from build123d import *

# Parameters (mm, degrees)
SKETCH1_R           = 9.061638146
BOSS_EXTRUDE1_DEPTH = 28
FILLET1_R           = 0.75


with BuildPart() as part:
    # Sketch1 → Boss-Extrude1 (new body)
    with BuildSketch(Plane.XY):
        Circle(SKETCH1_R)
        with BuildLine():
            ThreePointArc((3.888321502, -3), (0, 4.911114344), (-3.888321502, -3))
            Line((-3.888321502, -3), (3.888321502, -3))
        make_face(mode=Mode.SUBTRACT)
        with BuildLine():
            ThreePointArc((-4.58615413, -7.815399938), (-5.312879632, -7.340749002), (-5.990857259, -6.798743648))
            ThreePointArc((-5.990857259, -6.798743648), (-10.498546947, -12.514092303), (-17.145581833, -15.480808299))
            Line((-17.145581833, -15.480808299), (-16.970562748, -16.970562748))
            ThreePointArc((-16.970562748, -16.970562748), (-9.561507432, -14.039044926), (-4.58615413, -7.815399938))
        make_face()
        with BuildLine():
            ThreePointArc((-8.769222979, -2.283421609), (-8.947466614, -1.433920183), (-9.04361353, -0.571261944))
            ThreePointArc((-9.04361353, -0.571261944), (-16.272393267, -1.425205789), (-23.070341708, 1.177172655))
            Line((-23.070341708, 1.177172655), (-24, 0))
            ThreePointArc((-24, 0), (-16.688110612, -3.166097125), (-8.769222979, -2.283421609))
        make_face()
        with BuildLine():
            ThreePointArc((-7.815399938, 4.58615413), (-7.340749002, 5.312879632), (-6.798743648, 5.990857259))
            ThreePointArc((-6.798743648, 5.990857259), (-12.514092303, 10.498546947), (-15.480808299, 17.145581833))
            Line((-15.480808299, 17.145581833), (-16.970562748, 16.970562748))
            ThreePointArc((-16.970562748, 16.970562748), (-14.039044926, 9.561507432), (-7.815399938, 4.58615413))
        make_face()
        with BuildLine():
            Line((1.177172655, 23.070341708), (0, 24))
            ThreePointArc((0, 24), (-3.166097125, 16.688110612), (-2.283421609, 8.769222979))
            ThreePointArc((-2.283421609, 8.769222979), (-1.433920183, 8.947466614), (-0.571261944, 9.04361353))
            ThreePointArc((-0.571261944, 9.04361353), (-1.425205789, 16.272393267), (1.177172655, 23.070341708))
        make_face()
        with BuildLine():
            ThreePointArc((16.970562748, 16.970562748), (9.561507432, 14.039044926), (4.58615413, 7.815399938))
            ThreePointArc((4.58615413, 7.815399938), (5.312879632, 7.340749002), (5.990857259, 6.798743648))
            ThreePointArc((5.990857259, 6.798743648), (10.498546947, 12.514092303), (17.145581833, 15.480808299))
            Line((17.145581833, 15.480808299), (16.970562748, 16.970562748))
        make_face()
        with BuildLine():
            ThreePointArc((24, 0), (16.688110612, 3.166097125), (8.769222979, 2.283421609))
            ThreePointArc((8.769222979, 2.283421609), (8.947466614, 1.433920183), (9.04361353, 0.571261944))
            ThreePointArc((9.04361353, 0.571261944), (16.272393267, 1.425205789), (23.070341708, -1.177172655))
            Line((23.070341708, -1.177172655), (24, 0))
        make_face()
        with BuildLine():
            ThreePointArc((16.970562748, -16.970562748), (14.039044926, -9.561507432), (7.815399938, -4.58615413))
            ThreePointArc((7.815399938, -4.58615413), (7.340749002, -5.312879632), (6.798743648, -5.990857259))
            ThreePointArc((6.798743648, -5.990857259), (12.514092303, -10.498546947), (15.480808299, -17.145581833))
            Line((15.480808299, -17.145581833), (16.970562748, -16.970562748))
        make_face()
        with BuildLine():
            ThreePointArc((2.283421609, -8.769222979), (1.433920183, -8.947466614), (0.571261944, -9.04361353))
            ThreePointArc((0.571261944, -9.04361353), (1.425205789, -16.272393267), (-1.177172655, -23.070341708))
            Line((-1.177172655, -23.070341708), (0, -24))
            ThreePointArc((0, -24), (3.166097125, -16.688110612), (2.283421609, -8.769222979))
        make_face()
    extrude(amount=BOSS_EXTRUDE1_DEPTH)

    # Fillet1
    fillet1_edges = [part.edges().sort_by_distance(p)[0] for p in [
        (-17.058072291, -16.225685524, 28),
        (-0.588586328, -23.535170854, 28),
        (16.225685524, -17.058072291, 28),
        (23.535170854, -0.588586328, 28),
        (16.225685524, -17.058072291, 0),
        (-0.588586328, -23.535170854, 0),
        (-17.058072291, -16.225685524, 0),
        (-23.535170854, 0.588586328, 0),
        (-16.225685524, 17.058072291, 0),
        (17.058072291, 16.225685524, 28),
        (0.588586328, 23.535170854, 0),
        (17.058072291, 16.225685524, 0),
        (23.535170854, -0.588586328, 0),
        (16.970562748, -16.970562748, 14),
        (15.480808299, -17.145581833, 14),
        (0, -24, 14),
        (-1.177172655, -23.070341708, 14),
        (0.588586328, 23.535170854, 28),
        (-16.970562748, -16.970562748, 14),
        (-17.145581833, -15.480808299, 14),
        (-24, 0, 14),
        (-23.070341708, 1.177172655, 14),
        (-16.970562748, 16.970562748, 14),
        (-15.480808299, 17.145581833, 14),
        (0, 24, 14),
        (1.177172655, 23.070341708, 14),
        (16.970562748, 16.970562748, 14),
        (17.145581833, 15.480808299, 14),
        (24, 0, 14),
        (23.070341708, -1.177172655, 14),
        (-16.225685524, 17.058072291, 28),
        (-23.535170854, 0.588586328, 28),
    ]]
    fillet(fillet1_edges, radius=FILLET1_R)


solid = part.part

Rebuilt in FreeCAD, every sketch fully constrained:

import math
import FreeCAD as App
import Part
import Sketcher


def edges_at(feature, points):
    """Names of the edges that pass closest to the given points."""
    edges = feature.Shape.Edges
    near = lambda p: min(range(len(edges)), key=lambda i: edges[i].distToShape(Part.Vertex(*p))[0])
    return sorted({f"Edge{near(p) + 1}" for p in points})

doc = App.newDocument("Part")
body = doc.addObject("PartDesign::Body", "Body")

# Sketch on XY plane
sketch1 = body.newObject("Sketcher::SketchObject", "Sketch")
sketch1.AttachmentSupport = (doc.getObject("XY_Plane"), [""])
sketch1.MapMode = "FlatFace"
sketch1.addGeometry([
    Part.ArcOfCircle(Part.Circle(App.Vector(-19.841948, -0.509682, 0), App.Vector(0, 0, 1), 15.212003), math.radians(-79.790229), math.radians(-24.420335)),  # 0
    Part.LineSegment(App.Vector(-17.145582, -15.480808, 0), App.Vector(-16.970563, -16.970563, 0)),  # 1
    Part.ArcOfCircle(Part.Circle(App.Vector(-18.779965, -1.569016, 0), App.Vector(0, 0, 1), 15.507468), math.radians(-83.299501), math.radians(-23.753238)),  # 2
    Part.ArcOfCircle(Part.Circle(App.Vector(0, 0, 0), App.Vector(0, 0, 1), 9.061638), math.radians(-120.404833), math.radians(-86.385574)),  # 3
    Part.ArcOfCircle(Part.Circle(App.Vector(-13.669977, -14.390776, 0), App.Vector(0, 0, 1), 15.212003), math.radians(-34.790229), math.radians(20.579665)),  # 4
    Part.LineSegment(App.Vector(-1.177173, -23.070342, 0), App.Vector(0, -24, 0)),  # 5
    Part.ArcOfCircle(Part.Circle(App.Vector(-12.169978, -14.388903, 0), App.Vector(0, 0, 1), 15.507468), math.radians(-38.299501), math.radians(21.246762)),  # 6
    Part.ArcOfCircle(Part.Circle(App.Vector(0, 0, 0), App.Vector(0, 0, 1), 9.061638), math.radians(-75.404833), math.radians(-41.385574)),  # 7
    Part.ArcOfCircle(Part.Circle(App.Vector(0.509682, -19.841948, 0), App.Vector(0, 0, 1), 15.212003), math.radians(10.209771), math.radians(65.579665)),  # 8
    Part.LineSegment(App.Vector(15.480808, -17.145582, 0), App.Vector(16.970563, -16.970563, 0)),  # 9
    Part.ArcOfCircle(Part.Circle(App.Vector(1.569016, -18.779965, 0), App.Vector(0, 0, 1), 15.507468), math.radians(6.700499), math.radians(66.246762)),  # 10
    Part.ArcOfCircle(Part.Circle(App.Vector(0, 0, 0), App.Vector(0, 0, 1), 9.061638), math.radians(-30.404833), math.radians(3.614426)),  # 11
    Part.ArcOfCircle(Part.Circle(App.Vector(14.390776, -13.669977, 0), App.Vector(0, 0, 1), 15.212003), math.radians(55.209771), math.radians(110.579665)),  # 12
    Part.LineSegment(App.Vector(23.070342, -1.177173, 0), App.Vector(24, 0, 0)),  # 13
    Part.ArcOfCircle(Part.Circle(App.Vector(14.388903, -12.169978, 0), App.Vector(0, 0, 1), 15.507468), math.radians(51.700499), math.radians(111.246762)),  # 14
    Part.ArcOfCircle(Part.Circle(App.Vector(0, 0, 0), App.Vector(0, 0, 1), 9.061638), math.radians(14.595167), math.radians(48.614426)),  # 15
    Part.ArcOfCircle(Part.Circle(App.Vector(19.841948, 0.509682, 0), App.Vector(0, 0, 1), 15.212003), math.radians(100.209771), math.radians(155.579665)),  # 16
    Part.LineSegment(App.Vector(17.145582, 15.480808, 0), App.Vector(16.970563, 16.970563, 0)),  # 17
    Part.ArcOfCircle(Part.Circle(App.Vector(18.779965, 1.569016, 0), App.Vector(0, 0, 1), 15.507468), math.radians(96.700499), math.radians(156.246762)),  # 18
    Part.ArcOfCircle(Part.Circle(App.Vector(0, 0, 0), App.Vector(0, 0, 1), 9.061638), math.radians(59.595167), math.radians(93.614426)),  # 19
    Part.ArcOfCircle(Part.Circle(App.Vector(13.669977, 14.390776, 0), App.Vector(0, 0, 1), 15.212003), math.radians(145.209771), math.radians(200.579665)),  # 20
    Part.LineSegment(App.Vector(1.177173, 23.070342, 0), App.Vector(0, 24, 0)),  # 21
    Part.ArcOfCircle(Part.Circle(App.Vector(12.169978, 14.388903, 0), App.Vector(0, 0, 1), 15.507468), math.radians(141.700499), math.radians(201.246762)),  # 22
    Part.ArcOfCircle(Part.Circle(App.Vector(0, 0, 0), App.Vector(0, 0, 1), 9.061638), math.radians(104.595167), math.radians(138.614426)),  # 23
    Part.ArcOfCircle(Part.Circle(App.Vector(-0.509682, 19.841948, 0), App.Vector(0, 0, 1), 15.212003), math.radians(-169.790229), math.radians(-114.420335)),  # 24
    Part.LineSegment(App.Vector(-15.480808, 17.145582, 0), App.Vector(-16.970563, 16.970563, 0)),  # 25
    Part.ArcOfCircle(Part.Circle(App.Vector(-1.569016, 18.779965, 0), App.Vector(0, 0, 1), 15.507468), math.radians(-173.299501), math.radians(-113.753238)),  # 26
    Part.ArcOfCircle(Part.Circle(App.Vector(0, 0, 0), App.Vector(0, 0, 1), 9.061638), math.radians(149.595167), math.radians(183.614426)),  # 27
    Part.ArcOfCircle(Part.Circle(App.Vector(-14.390776, 13.669977, 0), App.Vector(0, 0, 1), 15.212003), math.radians(-124.790229), math.radians(-69.420335)),  # 28
    Part.LineSegment(App.Vector(-23.070342, 1.177173, 0), App.Vector(-24, 0, 0)),  # 29
    Part.ArcOfCircle(Part.Circle(App.Vector(-14.388903, 12.169978, 0), App.Vector(0, 0, 1), 15.507468), math.radians(-128.299501), math.radians(-68.753238)),  # 30
    Part.ArcOfCircle(Part.Circle(App.Vector(0, 0, 0), App.Vector(0, 0, 1), 9.061638), math.radians(-165.404833), math.radians(-131.385574)),  # 31
    Part.ArcOfCircle(Part.Circle(App.Vector(0, 0, 0), App.Vector(0, 0, 1), 4.911114), math.radians(-37.651664), math.radians(217.651664)),  # 32
    Part.LineSegment(App.Vector(3.888322, -3, 0), App.Vector(-3.888322, -3, 0)),  # 33
], False)
sketch1.addConstraint([
    Sketcher.Constraint("Coincident", 0, 1, 1, 1),
    Sketcher.Constraint("Coincident", 1, 2, 2, 1),
    Sketcher.Constraint("Coincident", 2, 2, 3, 1),
    Sketcher.Constraint("Coincident", 3, 2, 4, 2),
    Sketcher.Constraint("Coincident", 4, 1, 5, 1),
    Sketcher.Constraint("Coincident", 5, 2, 6, 1),
    Sketcher.Constraint("Coincident", 6, 2, 7, 1),
    Sketcher.Constraint("Coincident", 7, 2, 8, 2),
    Sketcher.Constraint("Coincident", 8, 1, 9, 1),
    Sketcher.Constraint("Coincident", 9, 2, 10, 1),
    Sketcher.Constraint("Coincident", 10, 2, 11, 1),
    Sketcher.Constraint("Coincident", 11, 2, 12, 2),
    Sketcher.Constraint("Coincident", 12, 1, 13, 1),
    Sketcher.Constraint("Coincident", 13, 2, 14, 1),
    Sketcher.Constraint("Coincident", 14, 2, 15, 1),
    Sketcher.Constraint("Coincident", 15, 2, 16, 2),
    Sketcher.Constraint("Coincident", 16, 1, 17, 1),
    Sketcher.Constraint("Coincident", 17, 2, 18, 1),
    Sketcher.Constraint("Coincident", 18, 2, 19, 1),
    Sketcher.Constraint("Coincident", 19, 2, 20, 2),
    Sketcher.Constraint("Coincident", 20, 1, 21, 1),
    Sketcher.Constraint("Coincident", 21, 2, 22, 1),
    Sketcher.Constraint("Coincident", 22, 2, 23, 1),
    Sketcher.Constraint("Coincident", 23, 2, 24, 2),
    Sketcher.Constraint("Coincident", 24, 1, 25, 1),
    Sketcher.Constraint("Coincident", 25, 2, 26, 1),
    Sketcher.Constraint("Coincident", 26, 2, 27, 1),
    Sketcher.Constraint("Coincident", 27, 2, 28, 2),
    Sketcher.Constraint("Coincident", 28, 1, 29, 1),
    Sketcher.Constraint("Coincident", 29, 2, 30, 1),
    Sketcher.Constraint("Coincident", 30, 2, 31, 1),
    Sketcher.Constraint("Coincident", 31, 2, 0, 2),
    Sketcher.Constraint("Coincident", 32, 1, 33, 1),
    Sketcher.Constraint("Coincident", 33, 2, 32, 2),
    Sketcher.Constraint("Horizontal", 33),
    Sketcher.Constraint("Coincident", 3, 3, -1, 1),
    Sketcher.Constraint("Coincident", 7, 3, -1, 1),
    Sketcher.Constraint("Coincident", 11, 3, -1, 1),
    Sketcher.Constraint("Coincident", 15, 3, -1, 1),
    Sketcher.Constraint("Coincident", 19, 3, -1, 1),
    Sketcher.Constraint("Coincident", 23, 3, -1, 1),
    Sketcher.Constraint("Coincident", 27, 3, -1, 1),
    Sketcher.Constraint("Coincident", 31, 3, -1, 1),
    Sketcher.Constraint("Coincident", 32, 3, -1, 1),
    Sketcher.Constraint("PointOnObject", 5, 2, -2),
    Sketcher.Constraint("PointOnObject", 13, 2, -1),
    Sketcher.Constraint("PointOnObject", 21, 2, -2),
    Sketcher.Constraint("PointOnObject", 29, 2, -1),
    Sketcher.Constraint("DistanceY", 5, 2, -1, 1, 24.0),
    Sketcher.Constraint("DistanceX", -1, 1, 13, 2, 24.0),
    Sketcher.Constraint("DistanceY", -1, 1, 21, 2, 24.0),
    Sketcher.Constraint("DistanceX", 29, 2, -1, 1, 24.0),
    Sketcher.Constraint("DistanceY", 32, 1, -1, 1, 3.0),
    Sketcher.Constraint("Distance", 1, 1.5),
    Sketcher.Constraint("Distance", 5, 1.5),
    Sketcher.Constraint("Distance", 9, 1.5),
    Sketcher.Constraint("Distance", 13, 1.5),
    Sketcher.Constraint("Distance", 17, 1.5),
    Sketcher.Constraint("Distance", 21, 1.5),
    Sketcher.Constraint("Distance", 25, 1.5),
    Sketcher.Constraint("Distance", 29, 1.5),
    Sketcher.Constraint("DistanceX", 4, 3, 6, 3, 1.499999),
    Sketcher.Constraint("DistanceY", 12, 3, 14, 3, 1.499999),
    Sketcher.Constraint("DistanceX", 22, 3, 20, 3, 1.499999),
    Sketcher.Constraint("DistanceY", 30, 3, 28, 3, 1.499999),
    Sketcher.Constraint("Radius", 3, 9.061638),
    Sketcher.Constraint("Radius", 6, 15.507468),
    Sketcher.Constraint("Radius", 7, 9.061638),
    Sketcher.Constraint("Radius", 11, 9.061638),
    Sketcher.Constraint("Radius", 14, 15.507468),
    Sketcher.Constraint("Radius", 15, 9.061638),
    Sketcher.Constraint("Radius", 19, 9.061638),
    Sketcher.Constraint("Radius", 22, 15.507468),
    Sketcher.Constraint("Radius", 23, 9.061638),
    Sketcher.Constraint("Radius", 27, 9.061638),
    Sketcher.Constraint("Radius", 30, 15.507468),
    Sketcher.Constraint("Radius", 31, 9.061638),
    Sketcher.Constraint("Radius", 0, 15.212003),
    Sketcher.Constraint("Radius", 2, 15.507468),
    Sketcher.Constraint("Radius", 4, 15.212003),
    Sketcher.Constraint("Radius", 8, 15.212003),
    Sketcher.Constraint("Radius", 10, 15.507468),
    Sketcher.Constraint("Radius", 12, 15.212003),
    Sketcher.Constraint("Radius", 16, 15.212003),
    Sketcher.Constraint("Radius", 18, 15.507468),
    Sketcher.Constraint("Radius", 20, 15.212003),
    Sketcher.Constraint("Radius", 24, 15.212003),
    Sketcher.Constraint("Radius", 26, 15.507468),
    Sketcher.Constraint("Radius", 28, 15.212003),
    Sketcher.Constraint("Radius", 32, 4.911114),
    Sketcher.Constraint("DistanceY", 2, 2, -1, 1, 7.8154),
    Sketcher.Constraint("DistanceX", -1, 1, 10, 2, 7.8154),
    Sketcher.Constraint("DistanceY", -1, 1, 18, 2, 7.8154),
    Sketcher.Constraint("DistanceX", 26, 2, -1, 1, 7.8154),
    Sketcher.Constraint("DistanceX", 2, 3, 1, 2, 1.809402),
    Sketcher.Constraint("DistanceY", 10, 3, 9, 2, 1.809402),
    Sketcher.Constraint("DistanceX", 17, 2, 18, 3, 1.809402),
    Sketcher.Constraint("DistanceY", 25, 2, 26, 3, 1.809402),
    Sketcher.Constraint("DistanceX", 0, 3, -1, 1, 19.841948),
    Sketcher.Constraint("DistanceY", 0, 3, -1, 1, 0.509682),
    Sketcher.Constraint("DistanceX", 6, 3, -1, 1, 12.169978),
    Sketcher.Constraint("DistanceX", -1, 1, 8, 3, 0.509682),
    Sketcher.Constraint("DistanceY", 8, 3, -1, 1, 19.841948),
    Sketcher.Constraint("DistanceY", 14, 3, -1, 1, 12.169978),
    Sketcher.Constraint("DistanceX", -1, 1, 16, 3, 19.841948),
    Sketcher.Constraint("DistanceY", -1, 1, 16, 3, 0.509682),
    Sketcher.Constraint("DistanceX", -1, 1, 22, 3, 12.169978),
    Sketcher.Constraint("DistanceX", 24, 3, -1, 1, 0.509682),
    Sketcher.Constraint("DistanceY", -1, 1, 24, 3, 19.841948),
    Sketcher.Constraint("DistanceY", -1, 1, 30, 3, 12.169978),
    Sketcher.Constraint("DistanceX", 0, 1, -1, 1, 17.145582),
    Sketcher.Constraint("DistanceX", -1, 1, 3, 2, 0.571262),
    Sketcher.Constraint("DistanceX", -1, 1, 8, 1, 15.480808),
    Sketcher.Constraint("DistanceY", -1, 1, 11, 2, 0.571262),
    Sketcher.Constraint("DistanceX", -1, 1, 16, 1, 17.145582),
    Sketcher.Constraint("DistanceX", 19, 2, -1, 1, 0.571262),
    Sketcher.Constraint("DistanceX", 24, 1, -1, 1, 15.480808),
    Sketcher.Constraint("DistanceY", 27, 2, -1, 1, 0.571262),
])
pad1 = body.newObject("PartDesign::Pad", "Pad")
pad1.Profile = sketch1
pad1.Length = 28
doc.recompute()

fillet = body.newObject("PartDesign::Fillet", "Fillet")
fillet.Base = (pad1, edges_at(pad1, [
    (-17.058, -16.226, 28),
    (-0.589, -23.535, 28),
    (16.226, -17.058, 28),
    (23.535, -0.589, 28),
    (16.226, -17.058, 0),
    (-0.589, -23.535, 0),
    (-17.058, -16.226, 0),
    (-23.535, 0.589, 0),
    (-16.226, 17.058, 0),
    (17.058, 16.226, 28),
    (0.589, 23.535, 0),
    (17.058, 16.226, 0),
    (23.535, -0.589, 0),
    (16.971, -16.971, 14),
    (15.481, -17.146, 14),
    (0, -24, 14),
    (-1.177, -23.07, 14),
    (0.589, 23.535, 28),
    (-16.971, -16.971, 14),
    (-17.146, -15.481, 14),
    (-24, 0, 14),
    (-23.07, 1.177, 14),
    (-16.971, 16.971, 14),
    (-15.481, 17.146, 14),
    (0, 24, 14),
    (1.177, 23.07, 14),
    (16.971, 16.971, 14),
    (17.146, 15.481, 14),
    (24, 0, 14),
    (23.07, -1.177, 14),
    (-16.226, 17.058, 28),
    (-23.535, 0.589, 28),
]))
fillet.Radius = 0.75

doc.recompute()
